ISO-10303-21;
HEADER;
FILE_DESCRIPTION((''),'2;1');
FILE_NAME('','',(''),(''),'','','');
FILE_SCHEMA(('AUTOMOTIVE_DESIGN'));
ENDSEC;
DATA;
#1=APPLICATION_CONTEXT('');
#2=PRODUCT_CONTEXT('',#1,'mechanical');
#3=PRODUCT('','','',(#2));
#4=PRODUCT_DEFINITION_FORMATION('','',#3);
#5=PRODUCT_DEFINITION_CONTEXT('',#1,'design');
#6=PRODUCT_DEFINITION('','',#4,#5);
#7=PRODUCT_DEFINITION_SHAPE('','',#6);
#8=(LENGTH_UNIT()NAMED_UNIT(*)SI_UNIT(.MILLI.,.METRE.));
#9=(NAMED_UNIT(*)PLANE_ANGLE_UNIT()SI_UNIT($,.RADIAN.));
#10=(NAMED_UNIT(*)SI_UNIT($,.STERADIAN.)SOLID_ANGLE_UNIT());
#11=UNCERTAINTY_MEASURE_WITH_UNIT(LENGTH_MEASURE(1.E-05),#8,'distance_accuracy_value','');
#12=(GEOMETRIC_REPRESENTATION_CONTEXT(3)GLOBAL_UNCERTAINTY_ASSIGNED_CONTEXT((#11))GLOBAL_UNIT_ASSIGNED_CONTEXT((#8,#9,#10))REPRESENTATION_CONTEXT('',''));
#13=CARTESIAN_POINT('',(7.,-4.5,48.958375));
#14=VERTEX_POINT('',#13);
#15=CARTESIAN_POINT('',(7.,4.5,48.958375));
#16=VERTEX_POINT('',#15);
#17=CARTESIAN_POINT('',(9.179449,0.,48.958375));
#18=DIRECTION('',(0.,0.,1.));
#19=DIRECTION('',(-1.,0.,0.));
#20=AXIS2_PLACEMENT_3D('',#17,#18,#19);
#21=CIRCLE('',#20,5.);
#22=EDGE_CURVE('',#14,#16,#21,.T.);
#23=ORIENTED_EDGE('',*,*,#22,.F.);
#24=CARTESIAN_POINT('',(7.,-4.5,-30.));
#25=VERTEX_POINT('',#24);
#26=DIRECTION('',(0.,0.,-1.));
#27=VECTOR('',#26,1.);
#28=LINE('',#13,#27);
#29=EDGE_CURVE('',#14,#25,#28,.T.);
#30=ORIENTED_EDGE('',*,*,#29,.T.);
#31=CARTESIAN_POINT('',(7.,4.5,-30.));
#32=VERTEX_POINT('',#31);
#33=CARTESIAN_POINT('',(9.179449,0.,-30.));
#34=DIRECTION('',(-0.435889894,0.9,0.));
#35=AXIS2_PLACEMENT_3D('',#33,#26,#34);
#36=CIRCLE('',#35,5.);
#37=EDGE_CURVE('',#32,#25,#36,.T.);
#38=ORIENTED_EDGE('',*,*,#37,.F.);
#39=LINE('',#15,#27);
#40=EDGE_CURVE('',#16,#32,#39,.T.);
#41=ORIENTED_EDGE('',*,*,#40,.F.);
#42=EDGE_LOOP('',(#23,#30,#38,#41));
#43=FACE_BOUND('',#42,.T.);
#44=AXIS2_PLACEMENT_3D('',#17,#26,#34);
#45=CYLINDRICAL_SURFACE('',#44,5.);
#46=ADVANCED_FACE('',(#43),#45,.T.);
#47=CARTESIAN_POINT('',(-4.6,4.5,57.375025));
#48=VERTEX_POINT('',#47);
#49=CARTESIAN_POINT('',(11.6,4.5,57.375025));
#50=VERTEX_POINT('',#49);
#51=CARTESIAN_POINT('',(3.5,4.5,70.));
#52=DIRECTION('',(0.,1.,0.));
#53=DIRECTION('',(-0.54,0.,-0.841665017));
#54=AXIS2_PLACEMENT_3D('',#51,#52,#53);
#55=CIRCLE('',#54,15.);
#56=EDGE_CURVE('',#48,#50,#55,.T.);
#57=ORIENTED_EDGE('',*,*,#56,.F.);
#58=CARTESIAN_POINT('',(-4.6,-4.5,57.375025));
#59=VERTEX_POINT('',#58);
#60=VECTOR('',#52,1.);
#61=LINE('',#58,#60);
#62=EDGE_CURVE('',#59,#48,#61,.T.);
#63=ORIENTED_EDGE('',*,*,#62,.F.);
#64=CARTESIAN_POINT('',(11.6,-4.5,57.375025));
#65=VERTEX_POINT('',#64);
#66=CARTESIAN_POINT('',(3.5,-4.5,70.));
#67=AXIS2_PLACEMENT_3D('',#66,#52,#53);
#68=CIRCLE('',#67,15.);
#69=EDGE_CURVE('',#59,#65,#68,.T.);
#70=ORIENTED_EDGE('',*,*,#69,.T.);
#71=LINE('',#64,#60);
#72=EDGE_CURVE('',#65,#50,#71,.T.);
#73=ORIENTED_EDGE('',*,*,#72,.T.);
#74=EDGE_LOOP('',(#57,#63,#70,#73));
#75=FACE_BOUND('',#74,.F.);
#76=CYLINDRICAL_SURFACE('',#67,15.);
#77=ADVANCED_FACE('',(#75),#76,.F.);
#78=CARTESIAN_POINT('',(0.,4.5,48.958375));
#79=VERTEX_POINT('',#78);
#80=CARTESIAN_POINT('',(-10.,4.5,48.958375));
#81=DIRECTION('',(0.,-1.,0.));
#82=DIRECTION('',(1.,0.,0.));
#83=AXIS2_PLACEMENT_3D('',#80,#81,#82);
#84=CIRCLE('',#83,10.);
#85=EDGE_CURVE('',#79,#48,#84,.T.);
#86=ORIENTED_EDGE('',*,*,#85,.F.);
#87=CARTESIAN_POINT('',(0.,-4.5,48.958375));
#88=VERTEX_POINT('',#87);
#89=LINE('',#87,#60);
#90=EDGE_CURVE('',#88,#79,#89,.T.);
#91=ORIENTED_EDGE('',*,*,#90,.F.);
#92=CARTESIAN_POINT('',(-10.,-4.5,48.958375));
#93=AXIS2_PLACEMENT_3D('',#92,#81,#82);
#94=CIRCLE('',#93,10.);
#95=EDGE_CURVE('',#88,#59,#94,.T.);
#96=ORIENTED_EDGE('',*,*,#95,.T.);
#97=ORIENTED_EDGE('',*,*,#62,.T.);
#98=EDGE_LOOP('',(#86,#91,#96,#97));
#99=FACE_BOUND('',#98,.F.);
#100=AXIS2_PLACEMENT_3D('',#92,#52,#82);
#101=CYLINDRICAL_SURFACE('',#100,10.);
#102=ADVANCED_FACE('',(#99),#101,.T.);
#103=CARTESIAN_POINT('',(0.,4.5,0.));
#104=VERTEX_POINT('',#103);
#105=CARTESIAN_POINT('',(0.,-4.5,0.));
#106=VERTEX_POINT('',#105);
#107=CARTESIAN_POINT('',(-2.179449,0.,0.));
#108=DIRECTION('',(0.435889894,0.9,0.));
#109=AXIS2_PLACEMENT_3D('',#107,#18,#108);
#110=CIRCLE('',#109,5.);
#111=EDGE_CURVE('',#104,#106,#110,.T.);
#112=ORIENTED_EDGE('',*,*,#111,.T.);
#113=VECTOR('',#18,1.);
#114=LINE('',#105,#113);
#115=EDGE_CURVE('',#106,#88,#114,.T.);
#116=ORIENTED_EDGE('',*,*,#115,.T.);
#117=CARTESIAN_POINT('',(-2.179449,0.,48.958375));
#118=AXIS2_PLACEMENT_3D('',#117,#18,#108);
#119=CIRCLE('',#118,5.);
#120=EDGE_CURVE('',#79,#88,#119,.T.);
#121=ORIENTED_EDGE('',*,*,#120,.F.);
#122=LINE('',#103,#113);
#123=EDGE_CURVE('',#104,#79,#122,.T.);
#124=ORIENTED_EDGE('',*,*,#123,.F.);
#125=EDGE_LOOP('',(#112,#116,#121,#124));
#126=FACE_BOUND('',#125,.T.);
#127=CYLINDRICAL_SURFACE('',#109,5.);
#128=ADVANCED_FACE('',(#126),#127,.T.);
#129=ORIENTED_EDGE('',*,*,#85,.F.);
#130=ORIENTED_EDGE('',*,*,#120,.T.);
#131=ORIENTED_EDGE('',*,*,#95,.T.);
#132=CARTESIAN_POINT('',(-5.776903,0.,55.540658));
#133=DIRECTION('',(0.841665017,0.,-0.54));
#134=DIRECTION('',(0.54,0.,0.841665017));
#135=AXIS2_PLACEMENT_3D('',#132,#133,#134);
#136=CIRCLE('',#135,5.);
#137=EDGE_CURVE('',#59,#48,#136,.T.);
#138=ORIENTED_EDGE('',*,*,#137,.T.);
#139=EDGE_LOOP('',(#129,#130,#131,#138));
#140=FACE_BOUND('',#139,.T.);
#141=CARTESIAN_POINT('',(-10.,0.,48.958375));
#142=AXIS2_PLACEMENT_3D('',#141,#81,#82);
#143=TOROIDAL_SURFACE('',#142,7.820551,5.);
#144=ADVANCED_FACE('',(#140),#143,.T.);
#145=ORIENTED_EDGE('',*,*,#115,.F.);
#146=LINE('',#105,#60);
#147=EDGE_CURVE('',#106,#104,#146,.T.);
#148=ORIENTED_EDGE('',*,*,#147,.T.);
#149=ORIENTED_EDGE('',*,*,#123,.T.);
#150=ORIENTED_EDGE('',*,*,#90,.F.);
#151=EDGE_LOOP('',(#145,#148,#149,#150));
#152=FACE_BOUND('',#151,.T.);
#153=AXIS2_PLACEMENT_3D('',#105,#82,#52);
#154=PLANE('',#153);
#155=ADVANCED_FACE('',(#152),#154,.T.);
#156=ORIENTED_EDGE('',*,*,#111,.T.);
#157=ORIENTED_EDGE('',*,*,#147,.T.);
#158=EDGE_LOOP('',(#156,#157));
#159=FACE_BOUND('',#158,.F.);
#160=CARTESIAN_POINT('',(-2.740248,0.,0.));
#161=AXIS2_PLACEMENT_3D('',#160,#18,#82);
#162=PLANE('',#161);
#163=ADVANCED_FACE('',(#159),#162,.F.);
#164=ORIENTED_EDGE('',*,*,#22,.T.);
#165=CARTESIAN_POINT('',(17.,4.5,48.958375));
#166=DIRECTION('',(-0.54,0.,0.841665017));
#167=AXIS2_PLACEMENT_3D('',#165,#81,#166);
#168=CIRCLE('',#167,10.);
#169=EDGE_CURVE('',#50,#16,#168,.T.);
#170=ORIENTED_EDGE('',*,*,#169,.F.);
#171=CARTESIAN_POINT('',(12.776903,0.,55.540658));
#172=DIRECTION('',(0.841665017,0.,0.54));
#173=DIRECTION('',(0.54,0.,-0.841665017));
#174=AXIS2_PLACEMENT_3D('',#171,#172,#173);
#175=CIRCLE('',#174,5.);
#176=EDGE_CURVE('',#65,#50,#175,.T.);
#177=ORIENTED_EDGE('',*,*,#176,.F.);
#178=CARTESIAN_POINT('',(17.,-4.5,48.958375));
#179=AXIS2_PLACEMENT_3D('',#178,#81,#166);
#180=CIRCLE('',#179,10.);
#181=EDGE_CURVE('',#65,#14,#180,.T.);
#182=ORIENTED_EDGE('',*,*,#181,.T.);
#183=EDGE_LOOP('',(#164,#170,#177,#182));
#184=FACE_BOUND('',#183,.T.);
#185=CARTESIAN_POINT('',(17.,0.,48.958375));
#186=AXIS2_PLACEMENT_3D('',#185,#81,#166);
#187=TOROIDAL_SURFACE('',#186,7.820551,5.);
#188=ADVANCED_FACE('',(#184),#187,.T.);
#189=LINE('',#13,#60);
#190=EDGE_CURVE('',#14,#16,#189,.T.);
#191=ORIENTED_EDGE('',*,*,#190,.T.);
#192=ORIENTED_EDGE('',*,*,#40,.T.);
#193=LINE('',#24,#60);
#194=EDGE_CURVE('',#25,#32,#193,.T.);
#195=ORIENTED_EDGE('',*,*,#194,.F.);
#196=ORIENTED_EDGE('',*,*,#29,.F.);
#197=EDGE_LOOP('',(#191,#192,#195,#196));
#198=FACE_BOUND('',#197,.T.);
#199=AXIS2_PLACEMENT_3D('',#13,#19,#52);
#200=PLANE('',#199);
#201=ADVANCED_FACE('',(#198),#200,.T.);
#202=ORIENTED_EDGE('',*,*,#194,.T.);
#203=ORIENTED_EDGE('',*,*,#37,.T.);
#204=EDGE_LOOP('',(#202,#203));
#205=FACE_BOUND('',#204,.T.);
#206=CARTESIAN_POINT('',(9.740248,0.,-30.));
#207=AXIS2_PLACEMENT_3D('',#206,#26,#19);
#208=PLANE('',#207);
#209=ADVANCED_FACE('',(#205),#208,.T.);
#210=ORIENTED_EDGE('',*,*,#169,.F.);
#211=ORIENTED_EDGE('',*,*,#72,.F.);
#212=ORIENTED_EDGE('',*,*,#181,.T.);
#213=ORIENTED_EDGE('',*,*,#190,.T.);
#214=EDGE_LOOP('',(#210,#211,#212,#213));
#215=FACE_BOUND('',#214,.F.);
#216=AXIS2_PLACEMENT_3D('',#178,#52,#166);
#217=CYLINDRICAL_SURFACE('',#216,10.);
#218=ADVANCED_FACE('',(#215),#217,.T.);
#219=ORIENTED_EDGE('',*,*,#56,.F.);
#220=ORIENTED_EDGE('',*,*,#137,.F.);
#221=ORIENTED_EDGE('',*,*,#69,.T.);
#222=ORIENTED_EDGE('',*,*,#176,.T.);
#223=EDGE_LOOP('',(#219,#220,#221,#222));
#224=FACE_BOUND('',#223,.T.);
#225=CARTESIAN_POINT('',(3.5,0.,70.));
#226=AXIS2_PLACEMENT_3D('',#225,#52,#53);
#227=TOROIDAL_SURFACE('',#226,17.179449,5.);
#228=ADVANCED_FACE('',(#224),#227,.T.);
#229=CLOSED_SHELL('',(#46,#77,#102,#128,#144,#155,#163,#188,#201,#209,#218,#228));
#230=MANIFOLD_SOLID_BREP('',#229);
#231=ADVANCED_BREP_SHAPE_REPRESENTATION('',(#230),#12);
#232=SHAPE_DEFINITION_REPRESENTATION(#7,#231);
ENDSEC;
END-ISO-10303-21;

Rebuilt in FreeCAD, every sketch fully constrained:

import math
import FreeCAD as App
import Part
import Sketcher
Q = App.Units.Quantity

doc = App.newDocument("Part")
params = doc.addObject("Spreadsheet::Sheet", "Params")
for row, (alias, value) in enumerate([
    ("sketch1_radius", "5 mm"),
    ("sketch1_height", "9 mm"),
    ("sketch2_radius", "10 mm"),
    ("sketch2_radius2", "15 mm"),
], start=1):
    params.set(f"A{row}", alias)
    params.set(f"B{row}", "=" + value)
    params.setAlias(f"B{row}", alias)

body = doc.addObject("PartDesign::Body", "Body")

# Sketch on XY plane
sketch1 = body.newObject("Sketcher::SketchObject", "Sketch")
sketch1.AttachmentSupport = (doc.getObject("XY_Plane"), [""])
sketch1.MapMode = "FlatFace"
sketch1.addGeometry(Part.LineSegment(App.Vector(0, -4.5, 0), App.Vector(0, 4.5, 0)), False)
sketch1.addGeometry(Part.ArcOfCircle(Part.Circle(App.Vector(-2.179449, 0, 0), App.Vector(0, 0, 1), 5), math.radians(64.158067), math.radians(295.841933)), False)
sketch1.addConstraint(Sketcher.Constraint("Coincident", 0, 1, 1, 2))
sketch1.addConstraint(Sketcher.Constraint("Coincident", 1, 1, 0, 2))
sketch1.addConstraint(Sketcher.Constraint("Vertical", 0))
sketch1.addConstraint(Sketcher.Constraint("Symmetric", 0, 1, 1, 1, -1, 1))
sketch1.addConstraint(Sketcher.Constraint("Radius", 1, Q("5 mm")))
sketch1.addConstraint(Sketcher.Constraint("DistanceY", 0, 1, 0, 2, Q("9 mm")))
sketch1.setExpression("Constraints[4]", "Params.sketch1_radius")
sketch1.setExpression("Constraints[5]", "Params.sketch1_height")

# Sketch on XZ plane
sketch2 = body.newObject("Sketcher::SketchObject", "Sketch001")
sketch2.AttachmentSupport = (doc.getObject("XZ_Plane"), [""])
sketch2.MapMode = "FlatFace"
sketch2.addGeometry(Part.LineSegment(App.Vector(0, 0, 0), App.Vector(0, 48.958375, 0)), False)
sketch2.addGeometry(Part.ArcOfCircle(Part.Circle(App.Vector(-10, 48.958375, 0), App.Vector(0, 0, 1), 10), math.radians(0), math.radians(57.316361)), False)
sketch2.addGeometry(Part.ArcOfCircle(Part.Circle(App.Vector(3.5, 70, 0), App.Vector(0, 0, 1), 15), math.radians(-57.316361), math.radians(237.316361)), False)
sketch2.addGeometry(Part.ArcOfCircle(Part.Circle(App.Vector(17, 48.958375, 0), App.Vector(0, 0, 1), 10), math.radians(122.683639), math.radians(180)), False)
sketch2.addGeometry(Part.LineSegment(App.Vector(7, 48.958375, 0), App.Vector(7, -30, 0)), False)
sketch2.addConstraint(Sketcher.Constraint("Tangent", 0, 2, 1, 1))
sketch2.addConstraint(Sketcher.Constraint("Tangent", 1, 2, 2, 2))
sketch2.addConstraint(Sketcher.Constraint("Tangent", 2, 1, 3, 1))
sketch2.addConstraint(Sketcher.Constraint("Tangent", 3, 2, 4, 1))
sketch2.addConstraint(Sketcher.Constraint("Vertical", 0))
sketch2.addConstraint(Sketcher.Constraint("Vertical", 4))
sketch2.addConstraint(Sketcher.Constraint("Coincident", 0, 1, -1, 1))
sketch2.addConstraint(Sketcher.Constraint("Equal", 1, 3))
sketch2.addConstraint(Sketcher.Constraint("Horizontal", 1, 3, 3, 3))
sketch2.addConstraint(Sketcher.Constraint("Radius", 1, Q("10 mm")))
sketch2.addConstraint(Sketcher.Constraint("Radius", 2, Q("15 mm")))
sketch2.addConstraint(Sketcher.Constraint("DistanceY", -1, 1, 2, 3, Q("70 mm")))
sketch2.addConstraint(Sketcher.Constraint("DistanceX", -1, 1, 3, 3, Q("17 mm")))
sketch2.addConstraint(Sketcher.Constraint("DistanceY", 4, 2, -1, 1, Q("30 mm")))
sketch2.setExpression("Constraints[9]", "Params.sketch2_radius")
sketch2.setExpression("Constraints[10]", "Params.sketch2_radius2")
doc.recompute()

additivepipe = body.newObject("PartDesign::AdditivePipe", "AdditivePipe")
additivepipe.Profile = sketch1
additivepipe.Spine = (sketch2, ["Edge1", "Edge2", "Edge3", "Edge4", "Edge5"])

doc.recompute()
